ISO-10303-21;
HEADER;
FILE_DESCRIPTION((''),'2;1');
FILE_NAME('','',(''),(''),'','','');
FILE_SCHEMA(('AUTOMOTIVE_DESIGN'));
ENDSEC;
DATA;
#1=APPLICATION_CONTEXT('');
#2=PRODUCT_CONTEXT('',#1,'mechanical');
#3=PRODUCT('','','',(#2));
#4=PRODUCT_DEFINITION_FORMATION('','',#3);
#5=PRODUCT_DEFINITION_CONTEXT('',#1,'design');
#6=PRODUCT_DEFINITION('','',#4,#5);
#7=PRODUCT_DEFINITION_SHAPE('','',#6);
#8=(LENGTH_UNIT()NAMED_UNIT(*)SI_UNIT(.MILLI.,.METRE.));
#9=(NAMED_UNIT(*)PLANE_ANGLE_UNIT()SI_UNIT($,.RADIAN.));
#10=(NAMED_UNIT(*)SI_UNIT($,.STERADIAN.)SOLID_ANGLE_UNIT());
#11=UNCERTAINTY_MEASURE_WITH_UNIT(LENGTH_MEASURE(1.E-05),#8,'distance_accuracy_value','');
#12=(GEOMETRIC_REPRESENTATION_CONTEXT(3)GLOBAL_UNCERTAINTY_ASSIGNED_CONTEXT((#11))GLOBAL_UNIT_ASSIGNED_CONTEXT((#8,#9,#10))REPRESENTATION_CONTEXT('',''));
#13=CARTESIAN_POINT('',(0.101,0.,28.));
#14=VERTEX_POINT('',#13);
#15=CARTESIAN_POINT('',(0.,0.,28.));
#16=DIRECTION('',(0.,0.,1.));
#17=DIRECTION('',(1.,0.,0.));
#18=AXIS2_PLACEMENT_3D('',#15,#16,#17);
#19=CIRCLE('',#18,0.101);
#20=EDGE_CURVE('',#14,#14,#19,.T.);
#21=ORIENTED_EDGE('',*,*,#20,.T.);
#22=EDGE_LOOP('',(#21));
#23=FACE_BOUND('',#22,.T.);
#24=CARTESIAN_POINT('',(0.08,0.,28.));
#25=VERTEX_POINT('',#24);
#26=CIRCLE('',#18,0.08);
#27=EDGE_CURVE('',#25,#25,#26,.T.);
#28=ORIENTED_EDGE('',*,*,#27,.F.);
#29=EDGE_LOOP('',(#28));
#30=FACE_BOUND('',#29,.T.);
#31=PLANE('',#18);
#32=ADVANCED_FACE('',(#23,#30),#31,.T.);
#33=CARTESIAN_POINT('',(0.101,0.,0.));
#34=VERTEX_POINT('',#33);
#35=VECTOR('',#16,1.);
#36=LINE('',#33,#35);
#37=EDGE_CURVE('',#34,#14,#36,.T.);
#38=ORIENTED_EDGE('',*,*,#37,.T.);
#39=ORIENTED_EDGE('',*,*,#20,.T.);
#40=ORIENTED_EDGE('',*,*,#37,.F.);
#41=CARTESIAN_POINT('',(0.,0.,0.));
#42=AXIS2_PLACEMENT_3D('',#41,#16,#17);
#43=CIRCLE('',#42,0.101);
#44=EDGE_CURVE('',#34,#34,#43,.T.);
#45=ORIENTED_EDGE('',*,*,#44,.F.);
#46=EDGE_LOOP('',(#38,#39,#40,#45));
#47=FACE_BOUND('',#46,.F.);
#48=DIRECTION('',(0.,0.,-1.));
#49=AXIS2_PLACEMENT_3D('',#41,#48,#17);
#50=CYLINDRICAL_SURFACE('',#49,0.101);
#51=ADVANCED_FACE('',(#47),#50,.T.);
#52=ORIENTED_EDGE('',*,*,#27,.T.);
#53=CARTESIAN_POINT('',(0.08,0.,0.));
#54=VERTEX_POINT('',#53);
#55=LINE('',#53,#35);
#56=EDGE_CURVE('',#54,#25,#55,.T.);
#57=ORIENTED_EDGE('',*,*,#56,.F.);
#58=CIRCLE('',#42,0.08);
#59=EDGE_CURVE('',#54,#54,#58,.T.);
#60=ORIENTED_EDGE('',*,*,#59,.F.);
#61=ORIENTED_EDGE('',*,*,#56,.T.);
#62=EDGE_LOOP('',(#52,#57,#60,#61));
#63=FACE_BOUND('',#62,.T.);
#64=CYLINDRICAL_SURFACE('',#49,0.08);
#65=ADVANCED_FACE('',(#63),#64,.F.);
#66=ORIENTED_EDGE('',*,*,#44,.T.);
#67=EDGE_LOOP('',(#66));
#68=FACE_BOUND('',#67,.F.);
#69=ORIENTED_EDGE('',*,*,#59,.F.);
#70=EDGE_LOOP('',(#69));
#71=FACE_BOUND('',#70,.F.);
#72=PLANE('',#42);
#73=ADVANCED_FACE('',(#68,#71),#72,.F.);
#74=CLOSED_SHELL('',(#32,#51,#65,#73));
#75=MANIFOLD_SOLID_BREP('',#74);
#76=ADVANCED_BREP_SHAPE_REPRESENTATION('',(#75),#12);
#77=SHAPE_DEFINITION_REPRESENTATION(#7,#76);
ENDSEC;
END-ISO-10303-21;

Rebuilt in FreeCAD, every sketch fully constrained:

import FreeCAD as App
import Part
import Sketcher

V = App.Vector
Q = App.Units.Quantity

doc = App.newDocument("Part")
body = doc.addObject("PartDesign::Body", "Body")

sketch1 = body.newObject("Sketcher::SketchObject", "Sketch")
sketch1.AttachmentSupport = (doc.getObject("XY_Plane"), [""])
sketch1.MapMode = "FlatFace"
sketch1.addGeometry([
    Part.Circle(V(0, 0, 0), V(0, 0, 1), 0.1),
    Part.Circle(V(0, 0, 0), V(0, 0, 1), 0.08),
], False)
sketch1.addConstraint([
    Sketcher.Constraint("Coincident", 0, 3, -1, 1),
    Sketcher.Constraint("Coincident", 1, 3, -1, 1),
    Sketcher.Constraint("Diameter", 1, Q("0.16 mm")),
    Sketcher.Constraint("Diameter", 0, Q("0.202 mm")),
])
pad1 = body.newObject("PartDesign::Pad", "Pad")
pad1.Profile = sketch1
pad1.Length = 28

doc.recompute()
